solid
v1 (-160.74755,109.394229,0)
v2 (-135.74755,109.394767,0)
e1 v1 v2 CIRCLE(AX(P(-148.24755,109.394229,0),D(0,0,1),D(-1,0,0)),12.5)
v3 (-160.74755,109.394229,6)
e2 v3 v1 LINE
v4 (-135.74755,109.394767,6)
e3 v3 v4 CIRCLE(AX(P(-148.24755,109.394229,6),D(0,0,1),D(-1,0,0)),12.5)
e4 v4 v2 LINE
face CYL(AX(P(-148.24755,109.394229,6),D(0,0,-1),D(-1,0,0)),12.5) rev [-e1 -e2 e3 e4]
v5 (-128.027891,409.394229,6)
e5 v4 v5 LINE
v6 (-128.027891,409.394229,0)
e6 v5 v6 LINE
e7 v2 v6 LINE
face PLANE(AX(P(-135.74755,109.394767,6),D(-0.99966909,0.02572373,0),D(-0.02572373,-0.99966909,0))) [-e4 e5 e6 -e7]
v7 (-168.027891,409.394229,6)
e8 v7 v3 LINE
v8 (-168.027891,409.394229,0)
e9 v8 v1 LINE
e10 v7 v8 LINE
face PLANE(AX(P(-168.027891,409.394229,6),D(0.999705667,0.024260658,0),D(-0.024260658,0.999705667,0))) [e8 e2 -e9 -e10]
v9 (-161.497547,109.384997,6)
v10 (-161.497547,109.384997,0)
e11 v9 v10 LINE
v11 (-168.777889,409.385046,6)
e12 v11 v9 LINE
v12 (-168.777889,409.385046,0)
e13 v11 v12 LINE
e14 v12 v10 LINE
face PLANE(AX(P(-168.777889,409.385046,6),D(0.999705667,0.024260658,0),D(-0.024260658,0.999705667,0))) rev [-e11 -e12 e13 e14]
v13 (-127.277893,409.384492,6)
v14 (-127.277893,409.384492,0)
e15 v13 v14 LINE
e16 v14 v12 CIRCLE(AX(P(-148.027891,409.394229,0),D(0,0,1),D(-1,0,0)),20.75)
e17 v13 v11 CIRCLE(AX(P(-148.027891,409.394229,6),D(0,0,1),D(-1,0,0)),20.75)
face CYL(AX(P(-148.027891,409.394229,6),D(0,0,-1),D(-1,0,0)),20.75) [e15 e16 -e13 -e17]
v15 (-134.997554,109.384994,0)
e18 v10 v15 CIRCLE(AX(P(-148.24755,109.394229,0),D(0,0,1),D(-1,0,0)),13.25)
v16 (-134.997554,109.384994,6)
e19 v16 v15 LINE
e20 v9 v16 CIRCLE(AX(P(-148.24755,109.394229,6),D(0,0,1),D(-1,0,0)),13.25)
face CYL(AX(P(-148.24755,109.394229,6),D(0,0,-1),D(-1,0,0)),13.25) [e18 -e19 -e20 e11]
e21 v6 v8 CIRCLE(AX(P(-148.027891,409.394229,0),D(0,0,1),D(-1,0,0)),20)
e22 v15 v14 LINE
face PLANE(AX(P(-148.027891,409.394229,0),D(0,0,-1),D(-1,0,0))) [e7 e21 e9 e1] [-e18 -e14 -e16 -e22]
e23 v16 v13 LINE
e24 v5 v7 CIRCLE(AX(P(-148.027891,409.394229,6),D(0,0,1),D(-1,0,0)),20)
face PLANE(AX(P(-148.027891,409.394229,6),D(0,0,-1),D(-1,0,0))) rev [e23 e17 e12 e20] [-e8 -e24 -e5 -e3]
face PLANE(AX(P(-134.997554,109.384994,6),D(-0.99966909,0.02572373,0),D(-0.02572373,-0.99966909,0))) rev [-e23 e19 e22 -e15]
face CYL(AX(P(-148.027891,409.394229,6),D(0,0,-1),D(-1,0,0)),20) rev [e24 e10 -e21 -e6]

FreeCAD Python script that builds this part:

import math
import FreeCAD as App
import Part
import Sketcher

V = App.Vector

doc = App.newDocument("Part")
body = doc.addObject("PartDesign::Body", "Body")

# Sketch on XY plane
sketch1 = body.newObject("Sketcher::SketchObject", "Sketch")
sketch1.AttachmentSupport = (doc.getObject("XY_Plane"), [""])
sketch1.MapMode = "FlatFace"
sketch1.addGeometry(Part.LineSegment(V(-168.777889, 409.385046, 0), V(-161.497547, 109.384997, 0)), False)
sketch1.addGeometry(Part.ArcOfCircle(Part.Circle(V(-148.24755, 109.394229, 0), V(0, 0, 1), 13.25), math.radians(-179.960081), math.radians(-0.039933)), False)
sketch1.addGeometry(Part.LineSegment(V(-134.997554, 109.384994, 0), V(-127.277893, 409.384492, 0)), False)
sketch1.addGeometry(Part.ArcOfCircle(Part.Circle(V(-148.027891, 409.394229, 0), V(0, 0, 1), 20.75), math.radians(-0.026886), math.radians(180.025356)), False)
sketch1.addGeometry(Part.LineSegment(V(-160.74755, 109.394229, 0), V(-168.027891, 409.394229, 0)), False)
sketch1.addGeometry(Part.ArcOfCircle(Part.Circle(V(-148.027891, 409.394229, 0), V(0, 0, 1), 20), math.radians(0), math.radians(180)), False)
sketch1.addGeometry(Part.LineSegment(V(-128.027891, 409.394229, 0), V(-135.74755, 109.394767, 0)), False)
sketch1.addGeometry(Part.ArcOfCircle(Part.Circle(V(-148.24755, 109.394229, 0), V(0, 0, 1), 12.5), math.radians(180), math.radians(360.002466)), False)
sketch1.addConstraint(Sketcher.Constraint("Coincident", 0, 2, 1, 1))
sketch1.addConstraint(Sketcher.Constraint("Coincident", 1, 2, 2, 1))
sketch1.addConstraint(Sketcher.Constraint("Coincident", 2, 2, 3, 1))
sketch1.addConstraint(Sketcher.Constraint("Coincident", 3, 2, 0, 1))
sketch1.addConstraint(Sketcher.Constraint("Coincident", 4, 2, 5, 2))
sketch1.addConstraint(Sketcher.Constraint("Coincident", 5, 1, 6, 1))
sketch1.addConstraint(Sketcher.Constraint("Coincident", 6, 2, 7, 2))
sketch1.addConstraint(Sketcher.Constraint("Coincident", 7, 1, 4, 1))
sketch1.addConstraint(Sketcher.Constraint("Coincident", 5, 3, 3, 3))
sketch1.addConstraint(Sketcher.Constraint("Coincident", 7, 3, 1, 3))
sketch1.addConstraint(Sketcher.Constraint("Radius", 5, 20.0))
sketch1.addConstraint(Sketcher.Constraint("Radius", 7, 12.5))
sketch1.addConstraint(Sketcher.Constraint("Radius", 1, 13.25))
sketch1.addConstraint(Sketcher.Constraint("Radius", 3, 20.75))
sketch1.addConstraint(Sketcher.Constraint("DistanceY", 1, 3, 3, 3, 300.0))
sketch1.addConstraint(Sketcher.Constraint("DistanceX", 1, 3, -1, 1, 148.24755))
sketch1.addConstraint(Sketcher.Constraint("DistanceY", -1, 1, 1, 3, 109.394229))
sketch1.addConstraint(Sketcher.Constraint("DistanceX", 3, 3, -1, 1, 148.027891))
sketch1.addConstraint(Sketcher.Constraint("DistanceY", -1, 1, 4, 2, 409.394229))
sketch1.addConstraint(Sketcher.Constraint("DistanceY", -1, 1, 5, 1, 409.394229))
sketch1.addConstraint(Sketcher.Constraint("DistanceY", -1, 1, 7, 1, 109.394229))
sketch1.addConstraint(Sketcher.Constraint("DistanceY", 0, 2, 1, 3, 0.009232))
sketch1.addConstraint(Sketcher.Constraint("DistanceY", 0, 2, 3, 2, 300.000049))
sketch1.addConstraint(Sketcher.Constraint("DistanceY", 0, 2, 6, 2, 0.00977))
sketch1.addConstraint(Sketcher.Constraint("Distance", 2, 300.098804))
sketch1.addConstraint(Sketcher.Constraint("DistanceY", -1, 1, 1, 2, 109.384994))
pad1 = body.newObject("PartDesign::Pad", "Pad")
pad1.Profile = sketch1
pad1.Length = 6

doc.recompute()
